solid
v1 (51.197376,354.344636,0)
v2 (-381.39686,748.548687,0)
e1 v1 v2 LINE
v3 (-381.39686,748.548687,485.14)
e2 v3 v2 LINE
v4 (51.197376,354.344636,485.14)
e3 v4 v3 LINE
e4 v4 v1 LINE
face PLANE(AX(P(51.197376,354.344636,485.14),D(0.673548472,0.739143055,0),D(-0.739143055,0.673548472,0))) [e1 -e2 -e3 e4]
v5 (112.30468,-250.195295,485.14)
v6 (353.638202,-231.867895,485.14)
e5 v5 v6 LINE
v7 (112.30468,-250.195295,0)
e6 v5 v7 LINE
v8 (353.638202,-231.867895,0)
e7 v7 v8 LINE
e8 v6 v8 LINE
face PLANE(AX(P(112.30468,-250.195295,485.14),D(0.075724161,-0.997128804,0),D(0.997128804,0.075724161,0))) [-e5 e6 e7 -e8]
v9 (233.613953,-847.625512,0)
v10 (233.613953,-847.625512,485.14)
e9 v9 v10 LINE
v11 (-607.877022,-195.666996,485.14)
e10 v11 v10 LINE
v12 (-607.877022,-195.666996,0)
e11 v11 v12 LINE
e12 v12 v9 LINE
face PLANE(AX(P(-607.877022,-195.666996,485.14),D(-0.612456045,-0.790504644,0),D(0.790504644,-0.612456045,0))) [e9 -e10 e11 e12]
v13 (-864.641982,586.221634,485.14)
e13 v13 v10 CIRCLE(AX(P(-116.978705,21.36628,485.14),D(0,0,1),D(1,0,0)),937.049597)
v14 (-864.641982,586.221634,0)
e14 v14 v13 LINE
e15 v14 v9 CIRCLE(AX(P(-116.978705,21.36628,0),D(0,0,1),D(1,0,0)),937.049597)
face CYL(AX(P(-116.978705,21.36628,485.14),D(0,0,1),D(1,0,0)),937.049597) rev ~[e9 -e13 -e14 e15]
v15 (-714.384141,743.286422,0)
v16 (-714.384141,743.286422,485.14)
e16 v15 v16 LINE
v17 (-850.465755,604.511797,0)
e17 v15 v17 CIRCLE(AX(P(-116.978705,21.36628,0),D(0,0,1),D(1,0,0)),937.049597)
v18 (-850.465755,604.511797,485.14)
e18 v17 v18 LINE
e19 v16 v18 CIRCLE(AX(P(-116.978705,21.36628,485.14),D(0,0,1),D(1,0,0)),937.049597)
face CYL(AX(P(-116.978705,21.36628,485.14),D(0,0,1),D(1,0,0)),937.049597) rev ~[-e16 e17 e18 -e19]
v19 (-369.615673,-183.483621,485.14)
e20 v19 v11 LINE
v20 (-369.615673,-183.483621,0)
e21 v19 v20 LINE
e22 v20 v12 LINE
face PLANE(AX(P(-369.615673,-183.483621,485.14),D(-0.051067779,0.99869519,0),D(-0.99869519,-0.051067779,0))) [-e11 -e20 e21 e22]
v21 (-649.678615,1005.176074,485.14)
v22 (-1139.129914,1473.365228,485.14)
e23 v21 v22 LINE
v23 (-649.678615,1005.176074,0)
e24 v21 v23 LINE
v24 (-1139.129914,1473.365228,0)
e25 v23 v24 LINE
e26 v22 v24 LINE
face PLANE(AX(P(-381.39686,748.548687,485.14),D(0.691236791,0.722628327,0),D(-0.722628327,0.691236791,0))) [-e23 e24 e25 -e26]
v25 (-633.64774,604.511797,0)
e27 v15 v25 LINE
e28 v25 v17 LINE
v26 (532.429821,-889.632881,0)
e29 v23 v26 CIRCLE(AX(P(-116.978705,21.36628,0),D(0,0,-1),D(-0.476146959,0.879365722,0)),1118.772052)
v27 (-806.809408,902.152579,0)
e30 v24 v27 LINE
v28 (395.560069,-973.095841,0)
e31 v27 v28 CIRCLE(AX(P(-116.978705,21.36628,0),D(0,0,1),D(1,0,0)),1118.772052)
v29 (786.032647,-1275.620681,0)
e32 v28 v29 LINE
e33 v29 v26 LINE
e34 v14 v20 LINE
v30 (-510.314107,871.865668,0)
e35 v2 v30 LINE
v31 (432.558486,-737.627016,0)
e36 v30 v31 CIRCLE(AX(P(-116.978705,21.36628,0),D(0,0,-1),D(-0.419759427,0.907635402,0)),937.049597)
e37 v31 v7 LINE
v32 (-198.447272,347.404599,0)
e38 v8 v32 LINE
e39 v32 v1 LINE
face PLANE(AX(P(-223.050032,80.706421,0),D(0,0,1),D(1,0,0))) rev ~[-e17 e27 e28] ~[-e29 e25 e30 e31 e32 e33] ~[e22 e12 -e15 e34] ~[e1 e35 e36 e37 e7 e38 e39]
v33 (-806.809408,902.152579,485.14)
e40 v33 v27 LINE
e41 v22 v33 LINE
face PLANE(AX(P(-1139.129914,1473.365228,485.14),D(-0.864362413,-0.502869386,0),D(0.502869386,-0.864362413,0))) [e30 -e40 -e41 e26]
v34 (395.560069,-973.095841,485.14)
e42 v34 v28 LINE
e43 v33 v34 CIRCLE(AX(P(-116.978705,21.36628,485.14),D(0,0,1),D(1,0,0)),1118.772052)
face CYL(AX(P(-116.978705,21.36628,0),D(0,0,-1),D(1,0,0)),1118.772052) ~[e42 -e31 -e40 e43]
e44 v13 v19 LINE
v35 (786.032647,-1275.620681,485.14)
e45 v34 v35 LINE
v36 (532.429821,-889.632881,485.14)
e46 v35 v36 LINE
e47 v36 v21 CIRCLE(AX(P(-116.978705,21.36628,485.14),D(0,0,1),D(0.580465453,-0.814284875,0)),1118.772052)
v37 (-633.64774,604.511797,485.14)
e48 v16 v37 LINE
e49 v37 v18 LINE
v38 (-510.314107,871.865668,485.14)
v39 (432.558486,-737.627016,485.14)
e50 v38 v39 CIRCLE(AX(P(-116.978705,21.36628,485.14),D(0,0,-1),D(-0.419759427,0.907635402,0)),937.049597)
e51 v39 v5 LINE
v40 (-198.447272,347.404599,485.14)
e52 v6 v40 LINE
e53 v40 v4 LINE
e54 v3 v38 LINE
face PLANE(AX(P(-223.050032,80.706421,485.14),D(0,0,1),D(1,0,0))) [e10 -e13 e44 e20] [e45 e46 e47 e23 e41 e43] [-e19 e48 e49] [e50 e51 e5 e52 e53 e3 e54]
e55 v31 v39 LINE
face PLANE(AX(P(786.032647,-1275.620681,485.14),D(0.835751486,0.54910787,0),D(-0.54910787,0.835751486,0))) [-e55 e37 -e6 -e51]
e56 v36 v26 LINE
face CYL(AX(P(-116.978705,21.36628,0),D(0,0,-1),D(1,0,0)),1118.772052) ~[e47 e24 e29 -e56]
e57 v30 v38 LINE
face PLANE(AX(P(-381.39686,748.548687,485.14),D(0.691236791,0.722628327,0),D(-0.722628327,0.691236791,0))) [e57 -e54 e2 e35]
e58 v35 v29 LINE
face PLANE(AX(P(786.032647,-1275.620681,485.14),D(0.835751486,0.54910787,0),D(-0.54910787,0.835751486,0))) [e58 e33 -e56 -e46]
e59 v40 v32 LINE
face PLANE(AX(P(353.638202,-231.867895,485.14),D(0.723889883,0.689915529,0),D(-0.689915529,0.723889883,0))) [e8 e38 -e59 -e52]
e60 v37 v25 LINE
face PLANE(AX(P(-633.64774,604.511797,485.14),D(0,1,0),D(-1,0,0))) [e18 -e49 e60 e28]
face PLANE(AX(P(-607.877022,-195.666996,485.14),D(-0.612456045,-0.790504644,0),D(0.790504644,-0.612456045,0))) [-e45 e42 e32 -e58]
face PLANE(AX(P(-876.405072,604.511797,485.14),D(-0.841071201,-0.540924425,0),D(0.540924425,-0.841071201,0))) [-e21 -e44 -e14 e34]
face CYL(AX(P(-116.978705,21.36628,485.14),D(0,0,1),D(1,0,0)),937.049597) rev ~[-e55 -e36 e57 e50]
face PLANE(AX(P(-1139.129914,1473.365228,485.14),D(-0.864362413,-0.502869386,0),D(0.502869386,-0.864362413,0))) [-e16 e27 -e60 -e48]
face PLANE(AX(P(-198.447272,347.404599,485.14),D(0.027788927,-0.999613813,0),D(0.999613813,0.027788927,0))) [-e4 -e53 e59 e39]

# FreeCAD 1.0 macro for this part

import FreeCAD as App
import Part
import Sketcher
Q = App.Units.Quantity

doc = App.newDocument("Part")
params = doc.addObject("Spreadsheet::Sheet", "Params")
for row, (alias, value) in enumerate([
    ("pad1_length", "19.1 in"),
    ("pad2_length", "19.1 in"),
], start=1):
    params.set(f"A{row}", alias)
    params.set(f"B{row}", "=" + value)
    params.setAlias(f"B{row}", alias)

body = doc.addObject("PartDesign::Body", "Body")

# Sketch on XY plane
sketch1 = body.newObject("Sketcher::SketchObject", "Sketch")
sketch1.AttachmentSupport = (doc.getObject("XY_Plane"), [""])
sketch1.MapMode = "FlatFace"
sketch1.addGeometry(Part.Circle(App.Vector(-117, 21, 0), App.Vector(0, 0, 1), 1119), False)
sketch1.addConstraint([
    Sketcher.Constraint("Diameter", 0, 2237.544104),
    Sketcher.Constraint("DistanceY", -1, 1, 0, 3, 21.36628),
    Sketcher.Constraint("DistanceX", 0, 3, -1, 1, 116.978705),
])
pad1 = body.newObject("PartDesign::Pad", "Pad")
pad1.Profile = sketch1
pad1.setExpression("Length", "Params.pad1_length")

# Sketch on XY plane
sketch2 = body.newObject("Sketcher::SketchObject", "Sketch001")
sketch2.AttachmentSupport = (doc.getObject("XY_Plane"), [""])
sketch2.MapMode = "FlatFace"
sketch2.AttachmentOffset = App.Placement(App.Vector(0, 0, 19.1 * 25.4), App.Rotation())
sketch2.addGeometry(Part.Circle(App.Vector(-117, 21, 0), App.Vector(0, 0, 1), 937), False)
sketch2.addConstraint([
    Sketcher.Constraint("Diameter", 0, 1874.099194),
    Sketcher.Constraint("DistanceY", -1, 1, 0, 3, 21.36628),
    Sketcher.Constraint("DistanceX", 0, 3, -1, 1, 116.978705),
])
pocket1 = body.newObject("PartDesign::Pocket", "Pocket")
pocket1.Profile = sketch2
pocket1.Type = "ThroughAll"

# Sketch on XY plane
sketch3 = body.newObject("Sketcher::SketchObject", "Sketch002")
sketch3.AttachmentSupport = (doc.getObject("XY_Plane"), [""])
sketch3.MapMode = "FlatFace"
sketch3.AttachmentOffset = App.Placement(App.Vector(0, 0, 19.1 * 25.4), App.Rotation())
sketch3.addGeometry([
    Part.LineSegment(App.Vector(-381, 749, 0), App.Vector(-1139, 1473, 0)),  # 0
    Part.LineSegment(App.Vector(-1139, 1473, 0), App.Vector(-634, 605, 0)),  # 1
    Part.LineSegment(App.Vector(-634, 605, 0), App.Vector(-876, 605, 0)),  # 2
    Part.LineSegment(App.Vector(-876, 605, 0), App.Vector(-370, -183, 0)),  # 3
    Part.LineSegment(App.Vector(-370, -183, 0), App.Vector(-608, -196, 0)),  # 4
    Part.LineSegment(App.Vector(-608, -196, 0), App.Vector(786, -1276, 0)),  # 5
    Part.LineSegment(App.Vector(786, -1276, 0), App.Vector(112, -250, 0)),  # 6
    Part.LineSegment(App.Vector(112, -250, 0), App.Vector(354, -232, 0)),  # 7
    Part.LineSegment(App.Vector(354, -232, 0), App.Vector(-198, 347, 0)),  # 8
    Part.LineSegment(App.Vector(-198, 347, 0), App.Vector(51, 354, 0)),  # 9
    Part.LineSegment(App.Vector(51, 354, 0), App.Vector(-381, 749, 0)),  # 10
], False)
sketch3.addConstraint([
    Sketcher.Constraint("Coincident", 0, 2, 1, 1),
    Sketcher.Constraint("Coincident", 1, 2, 2, 1),
    Sketcher.Constraint("Coincident", 2, 2, 3, 1),
    Sketcher.Constraint("Coincident", 3, 2, 4, 1),
    Sketcher.Constraint("Coincident", 4, 2, 5, 1),
    Sketcher.Constraint("Coincident", 5, 2, 6, 1),
    Sketcher.Constraint("Coincident", 6, 2, 7, 1),
    Sketcher.Constraint("Coincident", 7, 2, 8, 1),
    Sketcher.Constraint("Coincident", 8, 2, 9, 1),
    Sketcher.Constraint("Coincident", 9, 2, 10, 1),
    Sketcher.Constraint("Coincident", 10, 2, 0, 1),
    Sketcher.Constraint("Horizontal", 2),
    Sketcher.Constraint("Angle", 1, Q("-59.809981 deg")),
    Sketcher.Constraint("DistanceX", -1, 1, 7, 2, 353.638202),
    Sketcher.Constraint("DistanceY", -1, 1, 8, 2, 347.404599),
    Sketcher.Constraint("DistanceX", 2, 2, 3, 2, 506.789399),
    Sketcher.Constraint("DistanceX", 4, 2, 6, 2, 720.181702),
    Sketcher.Constraint("DistanceY", 6, 2, 4, 2, 54.528299),
    Sketcher.Constraint("DistanceY", 6, 2, 7, 2, 18.3274),
    Sketcher.Constraint("DistanceY", 8, 2, 1, 2, 257.107198),
    Sketcher.Constraint("DistanceX", 3, 2, 8, 2, 171.168401),
    Sketcher.Constraint("Distance", 0, 1048.579229),
    Sketcher.Constraint("Distance", 1, 1005.195758),
    Sketcher.Constraint("Distance", 4, 238.572641),
    Sketcher.Constraint("Distance", 5, 1763.31623),
    Sketcher.Constraint("Distance", 6, 1226.95012),
    Sketcher.Constraint("Distance", 8, 800.22184),
    Sketcher.Constraint("Distance", 10, 585.264561),
    Sketcher.Constraint("DistanceX", 2, 2, 2, 1, 242.757332),
    Sketcher.Constraint("DistanceX", 1, 2, -1, 1, 633.64774),
    Sketcher.Constraint("DistanceY", 3, 2, -1, 1, 183.483621),
    Sketcher.Constraint("DistanceX", 10, 2, -1, 1, 381.39686),
    Sketcher.Constraint("DistanceY", 6, 2, 9, 2, 604.539931),
])
pad2 = body.newObject("PartDesign::Pad", "Pad001")
pad2.Profile = sketch3
pad2.setExpression("Length", "Params.pad2_length")
pad2.Reversed = True

doc.recompute()
